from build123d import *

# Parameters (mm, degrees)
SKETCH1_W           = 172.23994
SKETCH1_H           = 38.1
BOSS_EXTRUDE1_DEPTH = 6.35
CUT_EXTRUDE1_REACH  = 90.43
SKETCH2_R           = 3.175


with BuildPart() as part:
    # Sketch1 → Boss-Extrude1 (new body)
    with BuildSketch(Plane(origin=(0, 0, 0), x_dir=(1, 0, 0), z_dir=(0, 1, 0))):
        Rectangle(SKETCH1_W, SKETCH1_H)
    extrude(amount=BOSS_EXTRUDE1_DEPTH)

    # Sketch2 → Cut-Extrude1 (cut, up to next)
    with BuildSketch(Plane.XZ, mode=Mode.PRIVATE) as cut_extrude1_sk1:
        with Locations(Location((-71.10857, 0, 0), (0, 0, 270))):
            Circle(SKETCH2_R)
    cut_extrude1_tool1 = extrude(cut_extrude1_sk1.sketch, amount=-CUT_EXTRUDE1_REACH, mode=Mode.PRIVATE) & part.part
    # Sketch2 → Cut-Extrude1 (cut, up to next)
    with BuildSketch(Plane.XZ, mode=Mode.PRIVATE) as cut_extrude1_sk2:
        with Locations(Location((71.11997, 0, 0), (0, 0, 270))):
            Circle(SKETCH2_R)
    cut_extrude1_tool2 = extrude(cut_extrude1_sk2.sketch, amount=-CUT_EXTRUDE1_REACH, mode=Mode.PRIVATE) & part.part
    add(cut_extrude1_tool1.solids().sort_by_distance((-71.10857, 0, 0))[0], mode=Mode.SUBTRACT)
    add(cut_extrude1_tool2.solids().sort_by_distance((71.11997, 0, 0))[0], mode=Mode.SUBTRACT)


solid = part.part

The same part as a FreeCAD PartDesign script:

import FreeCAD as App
import Part
import Sketcher

V = App.Vector
Q = App.Units.Quantity


def add_polygon(sketch, points):
    """Adds a closed chain of lines whose ends are joined by coincident constraints."""
    first, n = sketch.GeometryCount, len(points)
    for a, b in zip(points, points[1:] + points[:1]):
        sketch.addGeometry(Part.LineSegment(App.Vector(*a, 0), App.Vector(*b, 0)), False)
    for i in range(n):
        sketch.addConstraint(Sketcher.Constraint("Coincident", first + i, 2, first + (i + 1) % n, 1))

doc = App.newDocument("Part")
body = doc.addObject("PartDesign::Body", "Body")

# Sketch on XZ plane
sketch1 = doc.addObject("Sketcher::SketchObject", "Sketch")
body.addObject(sketch1)
sketch1.AttachmentSupport = (doc.XZ_Plane, [""])
sketch1.MapMode = "FlatFace"
add_polygon(sketch1, [(-86, -19), (-86, 19), (86, 19), (86, -19)])  # lines 0-3
sketch1.addConstraint(Sketcher.Constraint("Vertical", 0))
sketch1.addConstraint(Sketcher.Constraint("Horizontal", 1))
sketch1.addConstraint(Sketcher.Constraint("Vertical", 2))
sketch1.addConstraint(Sketcher.Constraint("Horizontal", 3))
sketch1.addConstraint(Sketcher.Constraint("Symmetric", 0, 2, 2, 2, -1, 1))
sketch1.addConstraint(Sketcher.Constraint("DistanceY", 0, 1, 0, 2, Q("1.5 in")))
sketch1.addConstraint(Sketcher.Constraint("DistanceX", 1, 1, 1, 2, Q("6.7811 in")))
pad1 = doc.addObject("PartDesign::Pad", "Pad")
body.addObject(pad1)
pad1.Profile = sketch1
pad1.Length = Q("0.25 in")
pad1.Reversed = True

# Sketch on XZ plane
sketch2 = doc.addObject("Sketcher::SketchObject", "Sketch001")
body.addObject(sketch2)
sketch2.AttachmentSupport = (doc.XZ_Plane, [""])
sketch2.MapMode = "FlatFace"
sketch2.addGeometry(Part.Circle(V(-71.1, 0, 0), V(0, 0, 1), 3.2), False)
sketch2.addConstraint(Sketcher.Constraint("PointOnObject", 0, 3, -1))
sketch2.addConstraint(Sketcher.Constraint("Diameter", 0, Q("0.25 in")))
sketch2.addConstraint(Sketcher.Constraint("DistanceX", 0, 3, -1, 1, Q("71.10857 mm")))
pocket1 = doc.addObject("PartDesign::Pocket", "Pocket")
body.addObject(pocket1)
pocket1.Profile = sketch2
pocket1.Type = "UpToFirst"

# Sketch on XZ plane
sketch3 = doc.addObject("Sketcher::SketchObject", "Sketch002")
body.addObject(sketch3)
sketch3.AttachmentSupport = (doc.XZ_Plane, [""])
sketch3.MapMode = "FlatFace"
sketch3.addGeometry(Part.Circle(V(71.1, 0, 0), V(0, 0, 1), 3.2), False)
sketch3.addConstraint(Sketcher.Constraint("PointOnObject", 0, 3, -1))
sketch3.addConstraint(Sketcher.Constraint("Diameter", 0, Q("0.25 in")))
sketch3.addConstraint(Sketcher.Constraint("DistanceX", -1, 1, 0, 3, Q("71.11997 mm")))
pocket2 = doc.addObject("PartDesign::Pocket", "Pocket001")
body.addObject(pocket2)
pocket2.Profile = sketch3
pocket2.Type = "UpToFirst"

doc.recompute()
